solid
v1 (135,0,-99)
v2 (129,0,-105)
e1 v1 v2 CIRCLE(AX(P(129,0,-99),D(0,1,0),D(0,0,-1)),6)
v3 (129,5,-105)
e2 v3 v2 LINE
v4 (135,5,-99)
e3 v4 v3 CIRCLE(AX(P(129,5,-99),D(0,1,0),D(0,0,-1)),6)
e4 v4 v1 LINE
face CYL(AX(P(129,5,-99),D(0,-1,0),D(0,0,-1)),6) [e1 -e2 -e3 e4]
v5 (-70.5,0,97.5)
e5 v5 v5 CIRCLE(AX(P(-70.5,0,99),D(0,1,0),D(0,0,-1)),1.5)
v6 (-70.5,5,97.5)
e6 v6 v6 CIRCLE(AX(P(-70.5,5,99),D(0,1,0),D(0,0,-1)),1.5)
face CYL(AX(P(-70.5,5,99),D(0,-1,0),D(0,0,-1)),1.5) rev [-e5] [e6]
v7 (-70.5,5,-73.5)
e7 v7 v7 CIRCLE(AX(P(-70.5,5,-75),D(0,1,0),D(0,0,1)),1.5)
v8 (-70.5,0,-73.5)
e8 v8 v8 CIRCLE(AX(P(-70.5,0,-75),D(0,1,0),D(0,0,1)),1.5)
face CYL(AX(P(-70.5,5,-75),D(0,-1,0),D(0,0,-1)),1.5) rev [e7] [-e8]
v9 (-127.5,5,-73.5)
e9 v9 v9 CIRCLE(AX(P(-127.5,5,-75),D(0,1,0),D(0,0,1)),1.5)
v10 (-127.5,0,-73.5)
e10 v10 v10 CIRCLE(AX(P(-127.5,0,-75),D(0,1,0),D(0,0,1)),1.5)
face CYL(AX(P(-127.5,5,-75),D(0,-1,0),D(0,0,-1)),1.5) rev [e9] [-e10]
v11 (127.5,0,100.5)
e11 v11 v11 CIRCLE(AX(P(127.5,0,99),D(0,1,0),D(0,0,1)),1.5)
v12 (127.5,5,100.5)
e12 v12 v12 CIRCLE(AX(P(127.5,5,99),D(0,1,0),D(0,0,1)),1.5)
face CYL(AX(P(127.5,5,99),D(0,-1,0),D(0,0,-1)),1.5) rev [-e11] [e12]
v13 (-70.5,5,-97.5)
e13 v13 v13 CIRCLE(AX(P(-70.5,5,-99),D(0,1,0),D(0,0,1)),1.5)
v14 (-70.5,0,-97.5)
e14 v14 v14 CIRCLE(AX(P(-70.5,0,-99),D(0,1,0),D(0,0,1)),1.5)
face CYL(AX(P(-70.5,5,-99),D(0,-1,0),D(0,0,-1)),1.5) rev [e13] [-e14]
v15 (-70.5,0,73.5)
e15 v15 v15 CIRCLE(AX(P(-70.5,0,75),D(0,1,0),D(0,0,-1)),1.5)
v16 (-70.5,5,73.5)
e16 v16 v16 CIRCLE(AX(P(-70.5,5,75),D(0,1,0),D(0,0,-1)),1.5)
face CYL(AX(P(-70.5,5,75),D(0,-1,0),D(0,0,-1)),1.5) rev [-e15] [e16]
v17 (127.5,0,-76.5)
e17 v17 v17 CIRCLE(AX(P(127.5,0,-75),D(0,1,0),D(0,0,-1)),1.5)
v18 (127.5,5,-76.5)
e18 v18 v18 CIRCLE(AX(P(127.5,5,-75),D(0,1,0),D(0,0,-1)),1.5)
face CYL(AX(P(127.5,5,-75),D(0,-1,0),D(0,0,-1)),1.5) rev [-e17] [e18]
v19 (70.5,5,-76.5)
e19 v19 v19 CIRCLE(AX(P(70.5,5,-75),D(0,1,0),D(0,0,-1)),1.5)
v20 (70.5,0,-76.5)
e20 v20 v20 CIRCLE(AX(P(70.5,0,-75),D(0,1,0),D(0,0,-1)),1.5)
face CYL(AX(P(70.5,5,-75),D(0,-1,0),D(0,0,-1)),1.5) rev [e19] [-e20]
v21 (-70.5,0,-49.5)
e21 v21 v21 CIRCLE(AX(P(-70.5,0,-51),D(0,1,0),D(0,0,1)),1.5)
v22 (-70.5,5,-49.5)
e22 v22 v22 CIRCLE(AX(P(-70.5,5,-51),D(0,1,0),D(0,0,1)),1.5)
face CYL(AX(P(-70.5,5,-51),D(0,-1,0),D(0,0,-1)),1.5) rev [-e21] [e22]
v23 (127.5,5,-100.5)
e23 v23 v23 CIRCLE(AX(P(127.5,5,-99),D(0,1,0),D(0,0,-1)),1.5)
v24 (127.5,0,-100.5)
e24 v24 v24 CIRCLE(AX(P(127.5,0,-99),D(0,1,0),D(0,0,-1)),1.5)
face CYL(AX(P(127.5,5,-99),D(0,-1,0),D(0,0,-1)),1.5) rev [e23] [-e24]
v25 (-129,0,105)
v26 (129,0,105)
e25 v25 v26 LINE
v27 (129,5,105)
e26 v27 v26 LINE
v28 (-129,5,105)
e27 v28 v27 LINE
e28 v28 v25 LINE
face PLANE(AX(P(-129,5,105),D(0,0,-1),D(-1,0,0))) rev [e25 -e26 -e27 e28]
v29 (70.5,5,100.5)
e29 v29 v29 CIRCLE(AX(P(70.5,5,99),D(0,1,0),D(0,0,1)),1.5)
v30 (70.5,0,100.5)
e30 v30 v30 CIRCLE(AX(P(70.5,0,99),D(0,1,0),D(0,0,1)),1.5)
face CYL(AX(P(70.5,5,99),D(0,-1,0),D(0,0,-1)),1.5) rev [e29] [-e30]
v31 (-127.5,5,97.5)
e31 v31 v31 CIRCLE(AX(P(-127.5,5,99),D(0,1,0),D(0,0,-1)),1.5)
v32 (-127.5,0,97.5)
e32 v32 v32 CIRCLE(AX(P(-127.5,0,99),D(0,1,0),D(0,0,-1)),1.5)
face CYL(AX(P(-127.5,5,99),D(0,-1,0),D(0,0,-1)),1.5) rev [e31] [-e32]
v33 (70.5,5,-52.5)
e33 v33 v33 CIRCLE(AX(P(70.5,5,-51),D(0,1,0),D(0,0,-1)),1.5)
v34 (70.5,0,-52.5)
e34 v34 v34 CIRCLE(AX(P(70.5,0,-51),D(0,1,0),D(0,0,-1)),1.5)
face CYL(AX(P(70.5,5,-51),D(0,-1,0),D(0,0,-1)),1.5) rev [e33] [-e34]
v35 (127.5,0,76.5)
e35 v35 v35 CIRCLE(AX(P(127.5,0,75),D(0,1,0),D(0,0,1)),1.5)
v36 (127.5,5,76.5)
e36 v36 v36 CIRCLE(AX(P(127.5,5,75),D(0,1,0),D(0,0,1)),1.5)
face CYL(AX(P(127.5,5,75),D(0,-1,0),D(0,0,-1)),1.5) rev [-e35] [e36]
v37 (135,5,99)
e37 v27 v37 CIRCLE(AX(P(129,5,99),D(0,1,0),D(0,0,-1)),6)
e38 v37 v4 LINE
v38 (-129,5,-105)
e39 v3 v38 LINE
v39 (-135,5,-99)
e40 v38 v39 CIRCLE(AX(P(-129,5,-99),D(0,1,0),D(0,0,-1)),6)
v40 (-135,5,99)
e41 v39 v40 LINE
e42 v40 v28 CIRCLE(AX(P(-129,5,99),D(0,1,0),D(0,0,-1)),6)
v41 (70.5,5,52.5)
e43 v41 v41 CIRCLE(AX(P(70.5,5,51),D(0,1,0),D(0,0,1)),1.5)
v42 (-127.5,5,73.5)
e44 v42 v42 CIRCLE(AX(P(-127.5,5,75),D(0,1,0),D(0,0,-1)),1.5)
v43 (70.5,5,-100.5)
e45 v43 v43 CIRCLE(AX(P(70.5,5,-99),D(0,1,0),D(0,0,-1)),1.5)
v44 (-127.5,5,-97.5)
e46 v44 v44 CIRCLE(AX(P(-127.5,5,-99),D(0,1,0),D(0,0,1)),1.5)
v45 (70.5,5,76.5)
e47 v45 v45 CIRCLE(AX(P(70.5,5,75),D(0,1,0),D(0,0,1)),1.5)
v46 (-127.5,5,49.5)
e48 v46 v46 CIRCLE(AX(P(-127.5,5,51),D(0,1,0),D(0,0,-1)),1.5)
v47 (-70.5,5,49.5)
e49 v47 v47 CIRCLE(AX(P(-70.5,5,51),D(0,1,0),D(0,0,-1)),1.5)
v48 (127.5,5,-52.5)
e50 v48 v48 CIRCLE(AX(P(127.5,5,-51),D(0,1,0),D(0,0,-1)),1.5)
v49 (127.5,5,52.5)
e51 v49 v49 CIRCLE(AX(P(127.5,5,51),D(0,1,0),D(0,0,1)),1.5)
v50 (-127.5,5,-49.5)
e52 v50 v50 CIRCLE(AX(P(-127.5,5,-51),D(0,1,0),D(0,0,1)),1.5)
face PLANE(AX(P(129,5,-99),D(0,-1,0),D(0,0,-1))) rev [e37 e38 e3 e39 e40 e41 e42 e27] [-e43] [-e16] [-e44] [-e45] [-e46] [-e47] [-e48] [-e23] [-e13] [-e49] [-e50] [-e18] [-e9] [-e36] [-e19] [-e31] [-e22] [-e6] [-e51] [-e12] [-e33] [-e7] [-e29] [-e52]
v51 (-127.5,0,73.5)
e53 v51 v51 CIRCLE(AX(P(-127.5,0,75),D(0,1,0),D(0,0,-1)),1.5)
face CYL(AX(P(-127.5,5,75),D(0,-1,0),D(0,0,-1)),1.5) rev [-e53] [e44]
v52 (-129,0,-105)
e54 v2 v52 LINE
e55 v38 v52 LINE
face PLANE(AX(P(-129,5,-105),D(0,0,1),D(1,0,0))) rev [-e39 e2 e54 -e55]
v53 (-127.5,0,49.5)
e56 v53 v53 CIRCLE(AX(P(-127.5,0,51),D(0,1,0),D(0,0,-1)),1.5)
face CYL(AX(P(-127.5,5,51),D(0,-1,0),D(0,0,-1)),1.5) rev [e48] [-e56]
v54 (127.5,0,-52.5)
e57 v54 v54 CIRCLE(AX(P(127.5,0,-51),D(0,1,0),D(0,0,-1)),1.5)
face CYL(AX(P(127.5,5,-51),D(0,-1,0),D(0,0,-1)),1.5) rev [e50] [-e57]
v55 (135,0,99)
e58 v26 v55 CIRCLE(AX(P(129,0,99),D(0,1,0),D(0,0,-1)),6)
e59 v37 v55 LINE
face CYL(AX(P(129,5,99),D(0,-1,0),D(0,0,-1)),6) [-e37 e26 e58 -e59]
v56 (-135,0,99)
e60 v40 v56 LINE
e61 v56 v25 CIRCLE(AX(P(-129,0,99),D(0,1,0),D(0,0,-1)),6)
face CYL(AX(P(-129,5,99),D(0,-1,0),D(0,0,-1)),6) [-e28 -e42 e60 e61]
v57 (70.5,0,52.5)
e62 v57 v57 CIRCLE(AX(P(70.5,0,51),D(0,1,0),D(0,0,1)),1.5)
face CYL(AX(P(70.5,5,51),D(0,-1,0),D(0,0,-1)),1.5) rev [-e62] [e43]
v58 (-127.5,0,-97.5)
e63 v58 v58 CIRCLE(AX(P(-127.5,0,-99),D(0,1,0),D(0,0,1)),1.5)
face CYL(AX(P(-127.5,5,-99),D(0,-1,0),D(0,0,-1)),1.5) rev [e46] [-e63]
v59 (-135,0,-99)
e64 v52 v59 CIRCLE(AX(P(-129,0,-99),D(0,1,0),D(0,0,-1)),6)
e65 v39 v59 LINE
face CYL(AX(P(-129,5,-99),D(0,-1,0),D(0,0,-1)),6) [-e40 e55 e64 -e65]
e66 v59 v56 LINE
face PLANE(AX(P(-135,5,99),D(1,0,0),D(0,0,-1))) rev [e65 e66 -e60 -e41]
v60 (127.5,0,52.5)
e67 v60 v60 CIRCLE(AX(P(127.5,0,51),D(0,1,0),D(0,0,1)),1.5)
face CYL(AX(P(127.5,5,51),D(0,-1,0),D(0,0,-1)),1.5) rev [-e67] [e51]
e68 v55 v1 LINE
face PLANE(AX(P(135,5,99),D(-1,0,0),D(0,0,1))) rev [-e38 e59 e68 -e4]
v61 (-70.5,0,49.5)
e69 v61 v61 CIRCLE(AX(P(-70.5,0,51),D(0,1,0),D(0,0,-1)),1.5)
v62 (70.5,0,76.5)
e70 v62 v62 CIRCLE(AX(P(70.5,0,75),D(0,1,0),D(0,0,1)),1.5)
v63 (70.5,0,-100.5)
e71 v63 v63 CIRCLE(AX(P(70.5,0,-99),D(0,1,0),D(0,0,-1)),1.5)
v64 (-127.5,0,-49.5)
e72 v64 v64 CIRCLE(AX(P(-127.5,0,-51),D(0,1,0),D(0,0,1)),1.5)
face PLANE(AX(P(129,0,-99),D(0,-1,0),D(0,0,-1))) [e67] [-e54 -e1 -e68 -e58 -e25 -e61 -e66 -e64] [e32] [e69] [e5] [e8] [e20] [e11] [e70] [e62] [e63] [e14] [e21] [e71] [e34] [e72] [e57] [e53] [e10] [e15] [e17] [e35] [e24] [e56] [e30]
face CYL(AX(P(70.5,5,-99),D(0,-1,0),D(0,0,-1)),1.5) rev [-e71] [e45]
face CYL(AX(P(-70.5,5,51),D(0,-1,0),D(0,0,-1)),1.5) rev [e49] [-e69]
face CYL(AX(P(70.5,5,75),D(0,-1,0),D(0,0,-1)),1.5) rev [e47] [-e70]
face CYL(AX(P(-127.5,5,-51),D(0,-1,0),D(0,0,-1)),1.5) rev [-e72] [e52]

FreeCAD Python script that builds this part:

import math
import FreeCAD as App
import Part
import Sketcher
from FreeCAD import Vector

doc = App.newDocument("Part")
body = doc.addObject("PartDesign::Body", "Body")

# Sketch on XZ plane
sketch1 = body.newObject("Sketcher::SketchObject", "Sketch")
sketch1.AttachmentSupport = (doc.getObject("XZ_Plane"), [""])
sketch1.MapMode = "FlatFace"
sketch1.addGeometry(Part.LineSegment(Vector(-129, 105, 0), Vector(129, 105, 0)), False)
sketch1.addGeometry(Part.ArcOfCircle(Part.Circle(Vector(129, 99, 0), Vector(0, 0, 1), 6), math.radians(0), math.radians(90)), False)
sketch1.addGeometry(Part.LineSegment(Vector(135, 99, 0), Vector(135, -99, 0)), False)
sketch1.addGeometry(Part.ArcOfCircle(Part.Circle(Vector(129, -99, 0), Vector(0, 0, 1), 6), math.radians(-90), math.radians(0)), False)
sketch1.addGeometry(Part.LineSegment(Vector(129, -105, 0), Vector(-129, -105, 0)), False)
sketch1.addGeometry(Part.ArcOfCircle(Part.Circle(Vector(-129, -99, 0), Vector(0, 0, 1), 6), math.radians(180), math.radians(270)), False)
sketch1.addGeometry(Part.LineSegment(Vector(-135, -99, 0), Vector(-135, 99, 0)), False)
sketch1.addGeometry(Part.ArcOfCircle(Part.Circle(Vector(-129, 99, 0), Vector(0, 0, 1), 6), math.radians(90), math.radians(180)), False)
sketch1.addGeometry(Part.Circle(Vector(-127.5, 99, 0), Vector(0, 0, 1), 1.5), False)
sketch1.addGeometry(Part.Circle(Vector(-70.5, 99, 0), Vector(0, 0, 1), 1.5), False)
sketch1.addGeometry(Part.Circle(Vector(-127.5, 75, 0), Vector(0, 0, 1), 1.5), False)
sketch1.addGeometry(Part.Circle(Vector(-127.5, 51, 0), Vector(0, 0, 1), 1.5), False)
sketch1.addGeometry(Part.Circle(Vector(-70.5, 75, 0), Vector(0, 0, 1), 1.5), False)
sketch1.addGeometry(Part.Circle(Vector(-70.5, 51, 0), Vector(0, 0, 1), 1.5), False)
sketch1.addGeometry(Part.Circle(Vector(70.5, 99, 0), Vector(0, 0, 1), 1.5), False)
sketch1.addGeometry(Part.Circle(Vector(127.5, 99, 0), Vector(0, 0, 1), 1.5), False)
sketch1.addGeometry(Part.Circle(Vector(70.5, 75, 0), Vector(0, 0, 1), 1.5), False)
sketch1.addGeometry(Part.Circle(Vector(70.5, 51, 0), Vector(0, 0, 1), 1.5), False)
sketch1.addGeometry(Part.Circle(Vector(127.5, 75, 0), Vector(0, 0, 1), 1.5), False)
sketch1.addGeometry(Part.Circle(Vector(127.5, 51, 0), Vector(0, 0, 1), 1.5), False)
sketch1.addGeometry(Part.Circle(Vector(-127.5, -51, 0), Vector(0, 0, 1), 1.5), False)
sketch1.addGeometry(Part.Circle(Vector(-127.5, -75, 0), Vector(0, 0, 1), 1.5), False)
sketch1.addGeometry(Part.Circle(Vector(-70.5, -51, 0), Vector(0, 0, 1), 1.5), False)
sketch1.addGeometry(Part.Circle(Vector(-70.5, -75, 0), Vector(0, 0, 1), 1.5), False)
sketch1.addGeometry(Part.Circle(Vector(-127.5, -99, 0), Vector(0, 0, 1), 1.5), False)
sketch1.addGeometry(Part.Circle(Vector(-70.5, -99, 0), Vector(0, 0, 1), 1.5), False)
sketch1.addGeometry(Part.Circle(Vector(70.5, -51, 0), Vector(0, 0, 1), 1.5), False)
sketch1.addGeometry(Part.Circle(Vector(70.5, -75, 0), Vector(0, 0, 1), 1.5), False)
sketch1.addGeometry(Part.Circle(Vector(127.5, -51, 0), Vector(0, 0, 1), 1.5), False)
sketch1.addGeometry(Part.Circle(Vector(127.5, -75, 0), Vector(0, 0, 1), 1.5), False)
sketch1.addGeometry(Part.Circle(Vector(70.5, -99, 0), Vector(0, 0, 1), 1.5), False)
sketch1.addGeometry(Part.Circle(Vector(127.5, -99, 0), Vector(0, 0, 1), 1.5), False)
sketch1.addConstraint(Sketcher.Constraint("Tangent", 0, 2, 1, 2))
sketch1.addConstraint(Sketcher.Constraint("Tangent", 1, 1, 2, 1))
sketch1.addConstraint(Sketcher.Constraint("Tangent", 2, 2, 3, 2))
sketch1.addConstraint(Sketcher.Constraint("Tangent", 3, 1, 4, 1))
sketch1.addConstraint(Sketcher.Constraint("Tangent", 4, 2, 5, 2))
sketch1.addConstraint(Sketcher.Constraint("Tangent", 5, 1, 6, 1))
sketch1.addConstraint(Sketcher.Constraint("Tangent", 6, 2, 7, 2))
sketch1.addConstraint(Sketcher.Constraint("Tangent", 7, 1, 0, 1))
sketch1.addConstraint(Sketcher.Constraint("Horizontal", 0))
sketch1.addConstraint(Sketcher.Constraint("Vertical", 2))
sketch1.addConstraint(Sketcher.Constraint("Horizontal", 4))
sketch1.addConstraint(Sketcher.Constraint("Vertical", 6))
sketch1.addConstraint(Sketcher.Constraint("Equal", 1, 3))
sketch1.addConstraint(Sketcher.Constraint("Equal", 3, 5))
sketch1.addConstraint(Sketcher.Constraint("Equal", 5, 7))
sketch1.addConstraint(Sketcher.Constraint("Equal", 8, 9))
sketch1.addConstraint(Sketcher.Constraint("Equal", 9, 10))
sketch1.addConstraint(Sketcher.Constraint("Equal", 10, 11))
sketch1.addConstraint(Sketcher.Constraint("Equal", 11, 12))
sketch1.addConstraint(Sketcher.Constraint("Equal", 12, 13))
sketch1.addConstraint(Sketcher.Constraint("Equal", 13, 14))
sketch1.addConstraint(Sketcher.Constraint("Equal", 14, 15))
sketch1.addConstraint(Sketcher.Constraint("Equal", 15, 16))
sketch1.addConstraint(Sketcher.Constraint("Equal", 16, 17))
sketch1.addConstraint(Sketcher.Constraint("Equal", 17, 18))
sketch1.addConstraint(Sketcher.Constraint("Equal", 18, 19))
sketch1.addConstraint(Sketcher.Constraint("Equal", 19, 20))
sketch1.addConstraint(Sketcher.Constraint("Equal", 20, 21))
sketch1.addConstraint(Sketcher.Constraint("Equal", 21, 22))
sketch1.addConstraint(Sketcher.Constraint("Equal", 22, 23))
sketch1.addConstraint(Sketcher.Constraint("Equal", 23, 24))
sketch1.addConstraint(Sketcher.Constraint("Equal", 24, 25))
sketch1.addConstraint(Sketcher.Constraint("Equal", 25, 26))
sketch1.addConstraint(Sketcher.Constraint("Equal", 26, 27))
sketch1.addConstraint(Sketcher.Constraint("Equal", 27, 28))
sketch1.addConstraint(Sketcher.Constraint("Equal", 28, 29))
sketch1.addConstraint(Sketcher.Constraint("Equal", 29, 30))
sketch1.addConstraint(Sketcher.Constraint("Equal", 30, 31))
sketch1.addConstraint(Sketcher.Constraint("Symmetric", 1, 3, 5, 3, -1, 1))
sketch1.addConstraint(Sketcher.Constraint("Symmetric", 19, 3, 20, 3, -1, 1))
sketch1.addConstraint(Sketcher.Constraint("Symmetric", 18, 3, 21, 3, -1, 1))
sketch1.addConstraint(Sketcher.Constraint("Symmetric", 17, 3, 22, 3, -1, 1))
sketch1.addConstraint(Sketcher.Constraint("Symmetric", 16, 3, 23, 3, -1, 1))
sketch1.addConstraint(Sketcher.Constraint("Symmetric", 15, 3, 24, 3, -1, 1))
sketch1.addConstraint(Sketcher.Constraint("Symmetric", 14, 3, 25, 3, -1, 1))
sketch1.addConstraint(Sketcher.Constraint("Symmetric", 13, 3, 26, 3, -1, 1))
sketch1.addConstraint(Sketcher.Constraint("Symmetric", 12, 3, 27, 3, -1, 1))
sketch1.addConstraint(Sketcher.Constraint("Symmetric", 11, 3, 28, 3, -1, 1))
sketch1.addConstraint(Sketcher.Constraint("Symmetric", 10, 3, 29, 3, -1, 1))
sketch1.addConstraint(Sketcher.Constraint("Symmetric", 9, 3, 30, 3, -1, 1))
sketch1.addConstraint(Sketcher.Constraint("Symmetric", 8, 3, 31, 3, -1, 1))
sketch1.addConstraint(Sketcher.Constraint("Symmetric", 9, 3, 14, 3, -2))
sketch1.addConstraint(Sketcher.Constraint("Symmetric", 8, 3, 15, 3, -2))
sketch1.addConstraint(Sketcher.Constraint("Symmetric", 12, 3, 16, 3, -2))
sketch1.addConstraint(Sketcher.Constraint("Symmetric", 13, 3, 17, 3, -2))
sketch1.addConstraint(Sketcher.Constraint("Symmetric", 10, 3, 18, 3, -2))
sketch1.addConstraint(Sketcher.Constraint("Symmetric", 11, 3, 19, 3, -2))
sketch1.addConstraint(Sketcher.Constraint("Horizontal", 7, 3, 8, 3))
sketch1.addConstraint(Sketcher.Constraint("Horizontal", 8, 3, 9, 3))
sketch1.addConstraint(Sketcher.Constraint("Horizontal", 10, 3, 12, 3))
sketch1.addConstraint(Sketcher.Constraint("Horizontal", 11, 3, 13, 3))
sketch1.addConstraint(Sketcher.Constraint("Vertical", 8, 3, 10, 3))
sketch1.addConstraint(Sketcher.Constraint("Vertical", 10, 3, 11, 3))
sketch1.addConstraint(Sketcher.Constraint("Vertical", 9, 3, 12, 3))
sketch1.addConstraint(Sketcher.Constraint("Vertical", 12, 3, 13, 3))
sketch1.addConstraint(Sketcher.Constraint("Diameter", 8, 3.0))
sketch1.addConstraint(Sketcher.Constraint("Radius", 1, 6.0))
sketch1.addConstraint(Sketcher.Constraint("DistanceX", 0, 1, 0, 2, 258.0))
sketch1.addConstraint(Sketcher.Constraint("DistanceY", 2, 2, 2, 1, 198.0))
sketch1.addConstraint(Sketcher.Constraint("DistanceY", -1, 1, 10, 3, 75.0))
sketch1.addConstraint(Sketcher.Constraint("DistanceY", -1, 1, 11, 3, 51.0))
sketch1.addConstraint(Sketcher.Constraint("DistanceX", 8, 3, 9, 3, 57.0))
sketch1.addConstraint(Sketcher.Constraint("DistanceX", 9, 3, 14, 3, 141.0))
pad1 = body.newObject("PartDesign::Pad", "Pad")
pad1.Profile = sketch1
pad1.Length = 5
pad1.Reversed = True

doc.recompute()
